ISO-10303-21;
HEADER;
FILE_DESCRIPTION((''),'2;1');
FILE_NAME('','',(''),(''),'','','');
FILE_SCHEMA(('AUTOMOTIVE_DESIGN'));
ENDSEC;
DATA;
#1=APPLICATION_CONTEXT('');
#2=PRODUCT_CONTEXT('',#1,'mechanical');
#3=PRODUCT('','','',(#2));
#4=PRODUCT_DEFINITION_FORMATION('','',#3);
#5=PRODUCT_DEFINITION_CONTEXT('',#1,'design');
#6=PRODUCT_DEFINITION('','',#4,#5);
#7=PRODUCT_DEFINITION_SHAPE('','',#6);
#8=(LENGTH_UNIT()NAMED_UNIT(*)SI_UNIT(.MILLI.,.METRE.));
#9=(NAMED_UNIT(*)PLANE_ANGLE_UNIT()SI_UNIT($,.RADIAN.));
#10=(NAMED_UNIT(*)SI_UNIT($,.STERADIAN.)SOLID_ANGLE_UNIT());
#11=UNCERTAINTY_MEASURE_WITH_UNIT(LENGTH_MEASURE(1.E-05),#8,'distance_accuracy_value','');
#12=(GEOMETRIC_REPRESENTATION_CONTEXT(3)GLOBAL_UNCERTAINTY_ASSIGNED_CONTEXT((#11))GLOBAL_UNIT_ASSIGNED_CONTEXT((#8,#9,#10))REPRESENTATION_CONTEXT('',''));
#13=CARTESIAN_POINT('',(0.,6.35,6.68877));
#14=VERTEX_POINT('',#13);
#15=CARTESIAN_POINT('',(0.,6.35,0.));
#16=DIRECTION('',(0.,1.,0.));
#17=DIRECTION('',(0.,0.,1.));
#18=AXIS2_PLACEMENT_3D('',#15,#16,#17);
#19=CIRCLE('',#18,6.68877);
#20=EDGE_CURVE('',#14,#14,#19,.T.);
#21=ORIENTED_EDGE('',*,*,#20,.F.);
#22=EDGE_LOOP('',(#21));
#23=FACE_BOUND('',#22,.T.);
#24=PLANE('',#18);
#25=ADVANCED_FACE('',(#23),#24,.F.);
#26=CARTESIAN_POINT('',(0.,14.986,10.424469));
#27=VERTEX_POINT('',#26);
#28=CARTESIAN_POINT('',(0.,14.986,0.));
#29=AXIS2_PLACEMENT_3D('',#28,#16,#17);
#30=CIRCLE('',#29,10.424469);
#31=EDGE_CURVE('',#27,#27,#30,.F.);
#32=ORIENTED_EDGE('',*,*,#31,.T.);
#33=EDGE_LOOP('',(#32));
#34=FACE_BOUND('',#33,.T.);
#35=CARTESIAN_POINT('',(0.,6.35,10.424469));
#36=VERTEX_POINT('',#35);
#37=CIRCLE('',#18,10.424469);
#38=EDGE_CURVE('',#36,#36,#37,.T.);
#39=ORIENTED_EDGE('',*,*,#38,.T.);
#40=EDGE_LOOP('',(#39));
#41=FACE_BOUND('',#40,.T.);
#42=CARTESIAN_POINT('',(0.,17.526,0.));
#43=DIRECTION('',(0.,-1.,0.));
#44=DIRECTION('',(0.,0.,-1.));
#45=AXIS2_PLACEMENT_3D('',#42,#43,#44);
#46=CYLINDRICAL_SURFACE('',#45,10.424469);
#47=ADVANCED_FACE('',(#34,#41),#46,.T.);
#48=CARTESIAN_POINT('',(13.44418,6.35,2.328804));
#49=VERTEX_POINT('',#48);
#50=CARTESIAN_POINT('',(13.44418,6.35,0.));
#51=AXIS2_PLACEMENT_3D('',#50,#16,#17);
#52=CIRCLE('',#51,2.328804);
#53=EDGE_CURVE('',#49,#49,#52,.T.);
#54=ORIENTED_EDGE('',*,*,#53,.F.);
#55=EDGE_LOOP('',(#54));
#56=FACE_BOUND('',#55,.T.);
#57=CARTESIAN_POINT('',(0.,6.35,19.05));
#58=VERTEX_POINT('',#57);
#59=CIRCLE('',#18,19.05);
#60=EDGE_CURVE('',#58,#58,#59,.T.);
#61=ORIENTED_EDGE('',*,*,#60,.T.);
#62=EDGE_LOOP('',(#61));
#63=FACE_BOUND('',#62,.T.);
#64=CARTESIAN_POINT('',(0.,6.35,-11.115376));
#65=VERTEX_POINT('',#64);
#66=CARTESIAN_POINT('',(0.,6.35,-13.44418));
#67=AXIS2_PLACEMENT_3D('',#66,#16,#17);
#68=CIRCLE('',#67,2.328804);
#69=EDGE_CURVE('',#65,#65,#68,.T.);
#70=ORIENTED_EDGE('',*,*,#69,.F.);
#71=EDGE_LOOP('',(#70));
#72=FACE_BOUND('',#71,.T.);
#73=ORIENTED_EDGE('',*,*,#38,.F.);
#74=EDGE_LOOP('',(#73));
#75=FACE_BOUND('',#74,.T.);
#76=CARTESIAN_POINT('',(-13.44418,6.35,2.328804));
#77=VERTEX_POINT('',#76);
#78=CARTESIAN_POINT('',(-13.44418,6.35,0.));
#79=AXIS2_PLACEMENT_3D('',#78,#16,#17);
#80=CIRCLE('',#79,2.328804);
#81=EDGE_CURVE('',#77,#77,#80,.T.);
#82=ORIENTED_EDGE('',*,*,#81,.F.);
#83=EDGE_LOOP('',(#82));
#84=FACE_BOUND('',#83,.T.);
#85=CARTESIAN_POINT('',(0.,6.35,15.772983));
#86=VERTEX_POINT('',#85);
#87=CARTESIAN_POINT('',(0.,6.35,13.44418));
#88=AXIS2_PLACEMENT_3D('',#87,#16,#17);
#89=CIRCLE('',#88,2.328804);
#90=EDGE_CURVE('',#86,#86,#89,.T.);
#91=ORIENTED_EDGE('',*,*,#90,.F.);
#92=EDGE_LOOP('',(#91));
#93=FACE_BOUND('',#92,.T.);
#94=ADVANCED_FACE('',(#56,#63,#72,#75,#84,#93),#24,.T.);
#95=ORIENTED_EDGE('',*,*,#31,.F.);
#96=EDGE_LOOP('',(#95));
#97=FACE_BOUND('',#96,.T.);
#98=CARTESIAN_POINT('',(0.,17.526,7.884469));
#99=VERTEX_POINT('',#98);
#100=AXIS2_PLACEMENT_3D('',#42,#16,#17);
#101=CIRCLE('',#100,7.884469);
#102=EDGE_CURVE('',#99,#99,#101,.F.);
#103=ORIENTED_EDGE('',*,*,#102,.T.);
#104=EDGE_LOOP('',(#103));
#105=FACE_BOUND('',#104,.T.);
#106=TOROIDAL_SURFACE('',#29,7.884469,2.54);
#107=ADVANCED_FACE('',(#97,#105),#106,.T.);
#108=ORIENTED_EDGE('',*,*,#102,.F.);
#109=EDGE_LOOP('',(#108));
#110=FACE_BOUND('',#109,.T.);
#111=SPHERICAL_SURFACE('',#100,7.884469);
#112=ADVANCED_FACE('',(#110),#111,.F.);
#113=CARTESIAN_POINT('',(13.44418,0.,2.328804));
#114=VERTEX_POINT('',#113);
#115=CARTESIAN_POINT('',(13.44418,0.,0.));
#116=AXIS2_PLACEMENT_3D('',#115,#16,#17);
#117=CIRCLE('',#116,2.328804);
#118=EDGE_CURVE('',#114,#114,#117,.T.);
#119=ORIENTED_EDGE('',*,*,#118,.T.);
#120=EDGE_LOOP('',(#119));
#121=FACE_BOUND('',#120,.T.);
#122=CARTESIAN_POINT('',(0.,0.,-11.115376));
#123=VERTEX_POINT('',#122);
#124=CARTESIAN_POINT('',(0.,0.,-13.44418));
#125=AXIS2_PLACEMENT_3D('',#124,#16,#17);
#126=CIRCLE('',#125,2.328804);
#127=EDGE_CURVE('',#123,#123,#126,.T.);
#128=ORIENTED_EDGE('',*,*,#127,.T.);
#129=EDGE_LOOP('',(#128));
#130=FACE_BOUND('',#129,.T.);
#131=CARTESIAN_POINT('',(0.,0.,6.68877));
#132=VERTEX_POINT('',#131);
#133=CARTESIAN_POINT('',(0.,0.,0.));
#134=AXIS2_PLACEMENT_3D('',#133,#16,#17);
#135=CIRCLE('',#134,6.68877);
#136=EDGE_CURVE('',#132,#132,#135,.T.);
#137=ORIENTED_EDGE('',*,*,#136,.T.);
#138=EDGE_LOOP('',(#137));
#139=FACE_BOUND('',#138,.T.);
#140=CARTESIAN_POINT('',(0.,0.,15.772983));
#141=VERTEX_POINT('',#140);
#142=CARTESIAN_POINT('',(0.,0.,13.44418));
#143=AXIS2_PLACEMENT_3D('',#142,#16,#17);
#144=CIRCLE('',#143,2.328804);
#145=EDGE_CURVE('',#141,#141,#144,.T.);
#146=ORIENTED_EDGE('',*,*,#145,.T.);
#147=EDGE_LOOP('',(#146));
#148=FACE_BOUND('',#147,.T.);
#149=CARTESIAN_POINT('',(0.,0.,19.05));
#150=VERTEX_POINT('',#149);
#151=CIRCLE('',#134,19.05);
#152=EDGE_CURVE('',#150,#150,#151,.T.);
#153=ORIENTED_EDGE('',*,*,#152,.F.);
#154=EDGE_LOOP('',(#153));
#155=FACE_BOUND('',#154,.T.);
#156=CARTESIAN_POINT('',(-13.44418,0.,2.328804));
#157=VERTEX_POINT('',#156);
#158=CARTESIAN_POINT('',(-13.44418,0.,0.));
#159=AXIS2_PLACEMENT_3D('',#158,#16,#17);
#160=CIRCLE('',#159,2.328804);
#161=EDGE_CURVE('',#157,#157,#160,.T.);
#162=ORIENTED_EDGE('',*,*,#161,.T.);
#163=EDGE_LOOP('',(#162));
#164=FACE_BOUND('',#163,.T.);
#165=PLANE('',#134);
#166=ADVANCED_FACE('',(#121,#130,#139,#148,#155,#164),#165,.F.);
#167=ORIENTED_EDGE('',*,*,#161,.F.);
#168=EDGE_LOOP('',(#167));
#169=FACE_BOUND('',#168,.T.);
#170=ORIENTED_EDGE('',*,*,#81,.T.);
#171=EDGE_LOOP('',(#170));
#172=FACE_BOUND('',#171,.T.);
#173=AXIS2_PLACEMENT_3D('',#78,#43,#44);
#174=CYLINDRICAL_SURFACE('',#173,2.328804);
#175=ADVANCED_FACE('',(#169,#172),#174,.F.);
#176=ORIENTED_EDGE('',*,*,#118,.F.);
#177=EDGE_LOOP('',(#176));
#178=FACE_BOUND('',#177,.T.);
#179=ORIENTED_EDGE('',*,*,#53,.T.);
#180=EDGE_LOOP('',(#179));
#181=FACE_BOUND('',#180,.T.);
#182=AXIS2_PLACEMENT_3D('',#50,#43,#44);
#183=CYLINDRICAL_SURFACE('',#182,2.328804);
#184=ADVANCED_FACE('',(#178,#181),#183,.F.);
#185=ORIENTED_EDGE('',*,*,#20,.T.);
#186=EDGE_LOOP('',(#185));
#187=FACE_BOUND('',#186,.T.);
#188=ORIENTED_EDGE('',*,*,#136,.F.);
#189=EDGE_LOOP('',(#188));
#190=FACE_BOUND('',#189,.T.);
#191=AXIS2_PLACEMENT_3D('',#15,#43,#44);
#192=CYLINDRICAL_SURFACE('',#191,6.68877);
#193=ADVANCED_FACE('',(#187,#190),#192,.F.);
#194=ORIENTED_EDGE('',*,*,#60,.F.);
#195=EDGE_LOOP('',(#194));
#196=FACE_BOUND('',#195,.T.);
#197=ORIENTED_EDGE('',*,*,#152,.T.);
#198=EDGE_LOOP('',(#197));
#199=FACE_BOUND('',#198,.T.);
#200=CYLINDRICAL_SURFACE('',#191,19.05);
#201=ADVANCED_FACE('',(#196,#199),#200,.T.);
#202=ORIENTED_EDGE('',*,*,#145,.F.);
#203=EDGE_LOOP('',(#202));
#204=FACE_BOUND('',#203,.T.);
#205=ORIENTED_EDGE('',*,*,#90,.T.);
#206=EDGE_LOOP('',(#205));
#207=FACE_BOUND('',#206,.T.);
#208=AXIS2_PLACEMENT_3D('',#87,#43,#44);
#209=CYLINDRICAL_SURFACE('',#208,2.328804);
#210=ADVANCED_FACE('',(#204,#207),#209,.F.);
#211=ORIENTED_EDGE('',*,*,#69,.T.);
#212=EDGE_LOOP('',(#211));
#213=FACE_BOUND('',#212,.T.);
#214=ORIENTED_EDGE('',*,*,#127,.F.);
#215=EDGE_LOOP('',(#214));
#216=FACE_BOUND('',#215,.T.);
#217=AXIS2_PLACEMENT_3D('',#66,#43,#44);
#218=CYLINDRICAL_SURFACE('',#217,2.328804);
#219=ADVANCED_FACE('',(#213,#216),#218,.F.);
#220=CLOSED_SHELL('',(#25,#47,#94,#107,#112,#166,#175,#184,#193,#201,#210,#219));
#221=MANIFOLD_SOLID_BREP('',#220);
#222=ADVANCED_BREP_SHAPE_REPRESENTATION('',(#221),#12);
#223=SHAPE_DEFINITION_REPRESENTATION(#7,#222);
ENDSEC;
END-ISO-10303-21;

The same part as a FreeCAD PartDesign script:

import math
import FreeCAD as App
import Part
import Sketcher
from FreeCAD import Vector
Q = App.Units.Quantity


def edges_at(feature, points):
    """Names of the edges that pass closest to the given points."""
    edges = feature.Shape.Edges
    near = lambda p: min(range(len(edges)), key=lambda i: edges[i].distToShape(Part.Vertex(*p))[0])
    return sorted({f"Edge{near(p) + 1}" for p in points})

doc = App.newDocument("Part")
body = doc.addObject("PartDesign::Body", "Body")

# Sketch on XZ plane
sketch1 = body.newObject("Sketcher::SketchObject", "Sketch")
sketch1.AttachmentSupport = (doc.getObject("XZ_Plane"), [""])
sketch1.MapMode = "FlatFace"
sketch1.addGeometry([
    Part.Circle(Vector(0, 0, 0), Vector(0, 0, 1), 19.1),  # 0
    Part.Circle(Vector(0, -13.4, 0), Vector(0, 0, 1), 2.3),  # 1
    Part.Circle(Vector(-13.4, 0, 0), Vector(0, 0, 1), 2.3),  # 2
    Part.Circle(Vector(13.4, 0, 0), Vector(0, 0, 1), 2.3),  # 3
    Part.Circle(Vector(0, 0, 0), Vector(0, 0, 1), 6.7),  # 4
    Part.Circle(Vector(0, 13.4, 0), Vector(0, 0, 1), 2.3),  # 5
], False)
sketch1.addConstraint([
    Sketcher.Constraint("Coincident", 0, 3, -1, 1),
    Sketcher.Constraint("Coincident", 4, 3, -1, 1),
    Sketcher.Constraint("Equal", 1, 2),
    Sketcher.Constraint("Equal", 2, 3),
    Sketcher.Constraint("Equal", 3, 5),
    Sketcher.Constraint("Symmetric", 2, 3, 3, 3, -1, 1),
    Sketcher.Constraint("Symmetric", 1, 3, 5, 3, -1, 1),
    Sketcher.Constraint("PointOnObject", 1, 3, -2),
    Sketcher.Constraint("PointOnObject", 2, 3, -1),
    Sketcher.Constraint("Diameter", 0, Q("1.5 in")),
    Sketcher.Constraint("Diameter", 4, Q("13.37754 mm")),
    Sketcher.Constraint("Diameter", 1, Q("4.657607 mm")),
    Sketcher.Constraint("DistanceY", 1, 3, -1, 1, Q("13.44418 mm")),
    Sketcher.Constraint("DistanceX", 2, 3, -1, 1, Q("13.44418 mm")),
])
pad1 = body.newObject("PartDesign::Pad", "Pad")
pad1.Profile = sketch1
pad1.Length = Q("0.25 in")
pad1.Reversed = True

# Sketch on XZ plane
sketch2 = body.newObject("Sketcher::SketchObject", "Sketch001")
sketch2.AttachmentSupport = (doc.getObject("XZ_Plane"), [""])
sketch2.MapMode = "FlatFace"
sketch2.AttachmentOffset = App.Placement(Vector(0, 0, -0.25 * 25.4), App.Rotation())
sketch2.addGeometry(Part.Circle(Vector(0, 0, 0), Vector(0, 0, 1), 10), False)
sketch2.addConstraint([
    Sketcher.Constraint("Coincident", 0, 3, -1, 1),
    Sketcher.Constraint("Diameter", 0, Q("20.848938 mm")),
])
pad2 = body.newObject("PartDesign::Pad", "Pad001")
pad2.Profile = sketch2
pad2.Length = Q("0.44 in")
pad2.Reversed = True
doc.recompute()

fillet = body.newObject("PartDesign::Fillet", "Fillet")
fillet.Base = (pad2, edges_at(pad2, [(0, 17.526, -10.424)]))
fillet.Radius = Q("0.1 in")
body2 = doc.addObject("PartDesign::Body", "Body001")

# Sketch on XZ plane
sketch3 = body2.newObject("Sketcher::SketchObject", "Sketch002")
sketch3.AttachmentSupport = (doc.getObject("XZ_Plane001"), [""])
sketch3.MapMode = "FlatFace"
sketch3.AttachmentOffset = App.Placement(Vector(0, 0, -0.69 * 25.4), App.Rotation())
sketch3.addGeometry([
    Part.LineSegment(Vector(0, -8, 0), Vector(0, 8, 0)),
    Part.ArcOfCircle(Part.Circle(Vector(0, 0, 0), Vector(0, 0, 1), 8), math.radians(-90), math.radians(90)),
], False)
sketch3.addConstraint([
    Sketcher.Constraint("Coincident", 0, 1, 1, 1),
    Sketcher.Constraint("Coincident", 1, 2, 0, 2),
    Sketcher.Constraint("Vertical", 0),
    Sketcher.Constraint("Coincident", 1, 3, -1, 1),
    Sketcher.Constraint("PointOnObject", 0, 1, -2),
    Sketcher.Constraint("Radius", 1, Q("7.884469 mm")),
])
revolution = body2.newObject("PartDesign::Revolution", "Revolution")
revolution.Profile = sketch3
revolution.ReferenceAxis = (sketch3, ["V_Axis"])
revolution.Angle = 360
doc.recompute()

boolean = body.newObject("PartDesign::Boolean", "Boolean")
boolean.Type = "Cut"
boolean.addObjects([body2])

doc.recompute()
